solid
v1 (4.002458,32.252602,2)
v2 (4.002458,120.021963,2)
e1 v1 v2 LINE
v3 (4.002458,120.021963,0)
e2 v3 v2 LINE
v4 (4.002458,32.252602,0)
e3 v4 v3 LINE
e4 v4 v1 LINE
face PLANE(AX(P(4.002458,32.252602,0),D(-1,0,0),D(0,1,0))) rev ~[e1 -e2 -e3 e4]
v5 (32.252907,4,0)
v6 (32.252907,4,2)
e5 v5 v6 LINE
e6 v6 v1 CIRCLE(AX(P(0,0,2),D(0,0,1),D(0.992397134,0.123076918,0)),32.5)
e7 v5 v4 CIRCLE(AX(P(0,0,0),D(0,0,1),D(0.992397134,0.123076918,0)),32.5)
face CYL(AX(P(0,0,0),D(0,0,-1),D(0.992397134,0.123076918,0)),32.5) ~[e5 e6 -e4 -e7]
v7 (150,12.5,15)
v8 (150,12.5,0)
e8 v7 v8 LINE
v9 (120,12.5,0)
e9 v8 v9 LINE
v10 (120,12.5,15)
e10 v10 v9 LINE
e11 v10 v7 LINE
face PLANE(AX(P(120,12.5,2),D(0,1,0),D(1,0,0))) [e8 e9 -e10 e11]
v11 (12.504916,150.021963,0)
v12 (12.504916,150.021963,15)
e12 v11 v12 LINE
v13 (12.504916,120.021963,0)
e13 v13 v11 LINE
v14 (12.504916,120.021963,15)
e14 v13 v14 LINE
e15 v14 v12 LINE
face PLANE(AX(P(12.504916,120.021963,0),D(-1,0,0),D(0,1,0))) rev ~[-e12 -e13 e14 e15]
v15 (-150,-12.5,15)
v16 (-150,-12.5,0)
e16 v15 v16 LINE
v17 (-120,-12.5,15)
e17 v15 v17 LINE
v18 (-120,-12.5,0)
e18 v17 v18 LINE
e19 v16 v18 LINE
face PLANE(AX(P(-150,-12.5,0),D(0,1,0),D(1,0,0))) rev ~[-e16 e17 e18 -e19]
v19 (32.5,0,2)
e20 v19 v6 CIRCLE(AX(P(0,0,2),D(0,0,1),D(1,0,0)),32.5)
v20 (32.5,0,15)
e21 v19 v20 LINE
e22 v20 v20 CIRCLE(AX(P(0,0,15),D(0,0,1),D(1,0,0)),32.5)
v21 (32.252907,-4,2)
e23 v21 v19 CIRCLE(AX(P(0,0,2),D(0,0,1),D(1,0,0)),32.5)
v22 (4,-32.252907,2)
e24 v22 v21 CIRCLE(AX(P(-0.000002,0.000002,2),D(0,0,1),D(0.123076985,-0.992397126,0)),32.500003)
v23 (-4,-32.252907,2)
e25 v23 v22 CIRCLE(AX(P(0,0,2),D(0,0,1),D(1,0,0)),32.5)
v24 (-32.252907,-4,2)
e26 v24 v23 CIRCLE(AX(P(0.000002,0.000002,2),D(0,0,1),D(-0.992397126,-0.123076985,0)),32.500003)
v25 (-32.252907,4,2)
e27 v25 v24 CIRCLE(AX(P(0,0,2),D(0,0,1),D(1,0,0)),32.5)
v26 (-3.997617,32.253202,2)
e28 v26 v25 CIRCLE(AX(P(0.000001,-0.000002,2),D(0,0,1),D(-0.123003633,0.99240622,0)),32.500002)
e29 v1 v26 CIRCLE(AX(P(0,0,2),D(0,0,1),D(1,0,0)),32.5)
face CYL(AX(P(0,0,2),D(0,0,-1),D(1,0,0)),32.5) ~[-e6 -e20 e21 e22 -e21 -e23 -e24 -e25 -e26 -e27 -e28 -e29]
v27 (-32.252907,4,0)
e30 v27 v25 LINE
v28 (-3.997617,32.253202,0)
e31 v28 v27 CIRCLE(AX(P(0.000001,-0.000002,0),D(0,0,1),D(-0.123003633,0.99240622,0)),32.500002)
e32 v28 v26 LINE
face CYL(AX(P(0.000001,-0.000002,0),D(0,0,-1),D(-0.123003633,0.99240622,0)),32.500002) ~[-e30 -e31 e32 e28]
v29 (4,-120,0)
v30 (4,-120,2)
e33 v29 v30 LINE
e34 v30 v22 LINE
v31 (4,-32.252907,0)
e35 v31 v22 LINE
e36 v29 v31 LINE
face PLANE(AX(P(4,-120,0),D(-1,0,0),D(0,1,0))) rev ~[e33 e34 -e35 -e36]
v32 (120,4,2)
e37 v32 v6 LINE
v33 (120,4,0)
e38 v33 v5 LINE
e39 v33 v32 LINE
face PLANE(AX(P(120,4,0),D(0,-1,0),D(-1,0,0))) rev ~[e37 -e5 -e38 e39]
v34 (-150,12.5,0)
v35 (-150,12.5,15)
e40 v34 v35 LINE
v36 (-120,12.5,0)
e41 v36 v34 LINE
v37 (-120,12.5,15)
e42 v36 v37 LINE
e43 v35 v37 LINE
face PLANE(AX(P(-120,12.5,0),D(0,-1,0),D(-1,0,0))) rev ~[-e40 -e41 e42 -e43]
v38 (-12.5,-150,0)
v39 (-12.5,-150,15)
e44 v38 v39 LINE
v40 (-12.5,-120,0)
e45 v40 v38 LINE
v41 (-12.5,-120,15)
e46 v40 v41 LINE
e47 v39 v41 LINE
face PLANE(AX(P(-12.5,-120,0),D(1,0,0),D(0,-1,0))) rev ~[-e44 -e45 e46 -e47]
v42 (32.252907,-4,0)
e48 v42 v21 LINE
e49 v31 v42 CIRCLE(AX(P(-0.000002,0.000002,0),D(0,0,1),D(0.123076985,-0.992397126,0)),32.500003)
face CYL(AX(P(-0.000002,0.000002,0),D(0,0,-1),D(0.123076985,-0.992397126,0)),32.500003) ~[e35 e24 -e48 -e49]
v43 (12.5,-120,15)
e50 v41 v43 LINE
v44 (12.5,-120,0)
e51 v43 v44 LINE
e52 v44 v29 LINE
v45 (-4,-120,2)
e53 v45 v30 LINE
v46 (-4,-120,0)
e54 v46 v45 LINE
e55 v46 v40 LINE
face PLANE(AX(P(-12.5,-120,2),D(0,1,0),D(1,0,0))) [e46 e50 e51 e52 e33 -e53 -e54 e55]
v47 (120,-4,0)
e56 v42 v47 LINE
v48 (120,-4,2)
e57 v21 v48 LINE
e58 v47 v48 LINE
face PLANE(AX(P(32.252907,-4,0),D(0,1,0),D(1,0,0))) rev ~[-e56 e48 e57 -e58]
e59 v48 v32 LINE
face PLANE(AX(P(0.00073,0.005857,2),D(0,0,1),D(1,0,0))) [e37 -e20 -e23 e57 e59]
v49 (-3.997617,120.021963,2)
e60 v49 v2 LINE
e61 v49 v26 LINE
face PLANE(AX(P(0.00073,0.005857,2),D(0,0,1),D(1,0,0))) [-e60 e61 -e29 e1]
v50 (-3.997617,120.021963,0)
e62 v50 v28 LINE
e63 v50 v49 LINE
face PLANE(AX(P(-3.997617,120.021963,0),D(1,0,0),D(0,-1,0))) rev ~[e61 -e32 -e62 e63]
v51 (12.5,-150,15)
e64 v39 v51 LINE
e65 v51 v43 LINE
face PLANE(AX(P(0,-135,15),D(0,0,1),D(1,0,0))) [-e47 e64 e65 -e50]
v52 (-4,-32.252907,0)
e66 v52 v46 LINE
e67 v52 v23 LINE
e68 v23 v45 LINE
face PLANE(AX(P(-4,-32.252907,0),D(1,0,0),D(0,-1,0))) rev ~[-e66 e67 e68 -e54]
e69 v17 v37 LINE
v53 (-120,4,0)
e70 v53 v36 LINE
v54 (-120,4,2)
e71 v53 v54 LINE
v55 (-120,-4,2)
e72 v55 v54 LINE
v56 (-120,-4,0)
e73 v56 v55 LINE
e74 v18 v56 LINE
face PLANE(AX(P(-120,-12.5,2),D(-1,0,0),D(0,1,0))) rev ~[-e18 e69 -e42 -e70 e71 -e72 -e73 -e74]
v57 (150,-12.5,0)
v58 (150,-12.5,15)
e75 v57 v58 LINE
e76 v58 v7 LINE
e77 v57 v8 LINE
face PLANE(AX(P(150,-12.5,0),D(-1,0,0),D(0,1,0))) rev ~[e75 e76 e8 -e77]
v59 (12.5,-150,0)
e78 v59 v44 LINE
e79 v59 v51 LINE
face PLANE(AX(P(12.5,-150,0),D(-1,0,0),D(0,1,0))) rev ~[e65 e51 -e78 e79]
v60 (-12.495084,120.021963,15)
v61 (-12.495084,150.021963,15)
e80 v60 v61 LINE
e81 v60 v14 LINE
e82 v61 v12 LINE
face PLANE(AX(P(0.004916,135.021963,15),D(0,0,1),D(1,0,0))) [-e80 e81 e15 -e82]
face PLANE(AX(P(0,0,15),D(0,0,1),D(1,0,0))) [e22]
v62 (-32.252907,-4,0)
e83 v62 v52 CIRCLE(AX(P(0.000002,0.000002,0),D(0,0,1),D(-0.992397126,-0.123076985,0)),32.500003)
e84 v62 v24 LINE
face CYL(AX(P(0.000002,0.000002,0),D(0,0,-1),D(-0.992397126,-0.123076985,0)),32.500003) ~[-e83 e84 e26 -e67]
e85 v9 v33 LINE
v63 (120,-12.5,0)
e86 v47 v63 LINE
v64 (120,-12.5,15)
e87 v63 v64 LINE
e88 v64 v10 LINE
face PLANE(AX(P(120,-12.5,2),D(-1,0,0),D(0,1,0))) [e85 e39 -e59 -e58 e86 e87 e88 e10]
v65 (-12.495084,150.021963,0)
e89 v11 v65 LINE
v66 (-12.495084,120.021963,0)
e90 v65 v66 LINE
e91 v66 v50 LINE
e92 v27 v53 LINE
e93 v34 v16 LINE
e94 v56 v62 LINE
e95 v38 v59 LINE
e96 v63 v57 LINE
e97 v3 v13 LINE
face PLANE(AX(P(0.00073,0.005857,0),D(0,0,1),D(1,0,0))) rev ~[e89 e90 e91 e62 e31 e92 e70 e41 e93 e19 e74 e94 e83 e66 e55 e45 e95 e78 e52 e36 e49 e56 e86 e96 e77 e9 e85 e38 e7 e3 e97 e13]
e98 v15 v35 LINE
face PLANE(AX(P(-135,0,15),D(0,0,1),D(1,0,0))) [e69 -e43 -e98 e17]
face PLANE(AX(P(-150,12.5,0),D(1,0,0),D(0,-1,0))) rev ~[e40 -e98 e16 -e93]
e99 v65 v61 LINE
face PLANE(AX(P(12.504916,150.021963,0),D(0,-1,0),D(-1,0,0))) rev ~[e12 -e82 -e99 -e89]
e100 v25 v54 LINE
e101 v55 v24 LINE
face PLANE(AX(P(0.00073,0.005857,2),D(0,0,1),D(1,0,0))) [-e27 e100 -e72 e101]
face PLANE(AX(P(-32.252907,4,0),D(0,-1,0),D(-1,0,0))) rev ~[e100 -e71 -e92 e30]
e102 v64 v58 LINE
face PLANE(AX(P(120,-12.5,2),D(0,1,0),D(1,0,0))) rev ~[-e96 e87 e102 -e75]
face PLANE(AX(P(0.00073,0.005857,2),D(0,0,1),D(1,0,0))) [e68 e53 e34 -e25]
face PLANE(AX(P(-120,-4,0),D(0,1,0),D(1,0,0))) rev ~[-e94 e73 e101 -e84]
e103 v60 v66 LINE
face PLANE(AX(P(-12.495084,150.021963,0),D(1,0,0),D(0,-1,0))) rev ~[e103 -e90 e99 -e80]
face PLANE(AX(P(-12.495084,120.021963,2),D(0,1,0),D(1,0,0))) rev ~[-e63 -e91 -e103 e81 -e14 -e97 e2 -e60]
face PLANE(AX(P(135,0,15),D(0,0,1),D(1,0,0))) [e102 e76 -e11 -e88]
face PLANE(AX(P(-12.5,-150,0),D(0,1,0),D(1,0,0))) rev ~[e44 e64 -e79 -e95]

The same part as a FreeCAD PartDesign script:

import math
import FreeCAD as App
import Part
import Sketcher

V = App.Vector
Q = App.Units.Quantity


def add_polygon(sketch, points):
    """Adds a closed chain of lines whose ends are joined by coincident constraints."""
    first, n = sketch.GeometryCount, len(points)
    for a, b in zip(points, points[1:] + points[:1]):
        sketch.addGeometry(Part.LineSegment(App.Vector(*a, 0), App.Vector(*b, 0)), False)
    for i in range(n):
        sketch.addConstraint(Sketcher.Constraint("Coincident", first + i, 2, first + (i + 1) % n, 1))

doc = App.newDocument("Part")
params = doc.addObject("Spreadsheet::Sheet", "Params")
for row, (alias, value) in enumerate([
    ("sketch1_radius", "32.5 mm"),
    ("sketch1_width", "30 mm"),
    ("sketch1_width2", "25 mm"),
    ("sketch1_width3", "8.5 mm"),
    ("pad1_length", "2 mm"),
    ("sketch2_diameter", "65 mm"),
    ("sketch2_width", "30 mm"),
    ("sketch2_width2", "25 mm"),
    ("pad2_length", "13 mm"),
], start=1):
    params.set(f"A{row}", alias)
    params.set(f"B{row}", "=" + value)
    params.setAlias(f"B{row}", alias)

body = doc.addObject("PartDesign::Body", "Body")

# Sketch on XY plane
sketch1 = body.newObject("Sketcher::SketchObject", "Sketch")
sketch1.AttachmentSupport = (doc.getObject("XY_Plane"), [""])
sketch1.MapMode = "FlatFace"
sketch1.addGeometry(Part.LineSegment(V(-150, -12, 0), V(-120, -12, 0)), False)
sketch1.addGeometry(Part.LineSegment(V(-120, -12, 0), V(-120, -4, 0)), False)
sketch1.addGeometry(Part.LineSegment(V(-120, -4, 0), V(-32, -4, 0)), False)
sketch1.addGeometry(Part.ArcOfCircle(Part.Circle(V(0, 0, 0), V(0, 0, 1), 33), math.radians(-173), math.radians(-97)), False)
sketch1.addGeometry(Part.LineSegment(V(-4, -32, 0), V(-4, -120, 0)), False)
sketch1.addGeometry(Part.LineSegment(V(-4, -120, 0), V(-12, -120, 0)), False)
sketch1.addGeometry(Part.LineSegment(V(-12, -120, 0), V(-12, -150, 0)), False)
sketch1.addGeometry(Part.LineSegment(V(-12, -150, 0), V(12, -150, 0)), False)
sketch1.addGeometry(Part.LineSegment(V(12, -150, 0), V(12, -120, 0)), False)
sketch1.addGeometry(Part.LineSegment(V(12, -120, 0), V(4, -120, 0)), False)
sketch1.addGeometry(Part.LineSegment(V(4, -120, 0), V(4, -32, 0)), False)
sketch1.addGeometry(Part.ArcOfCircle(Part.Circle(V(0, 0, 0), V(0, 0, 1), 33), math.radians(-83), math.radians(-7)), False)
sketch1.addGeometry(Part.LineSegment(V(32, -4, 0), V(120, -4, 0)), False)
sketch1.addGeometry(Part.LineSegment(V(120, -4, 0), V(120, -12, 0)), False)
sketch1.addGeometry(Part.LineSegment(V(120, -12, 0), V(150, -12, 0)), False)
sketch1.addGeometry(Part.LineSegment(V(150, -12, 0), V(150, 12, 0)), False)
sketch1.addGeometry(Part.LineSegment(V(150, 12, 0), V(120, 12, 0)), False)
sketch1.addGeometry(Part.LineSegment(V(120, 12, 0), V(120, 4, 0)), False)
sketch1.addGeometry(Part.LineSegment(V(120, 4, 0), V(32, 4, 0)), False)
sketch1.addGeometry(Part.ArcOfCircle(Part.Circle(V(0, 0, 0), V(0, 0, 1), 32), math.radians(7), math.radians(83)), False)
sketch1.addGeometry(Part.LineSegment(V(4, 32, 0), V(4, 120, 0)), False)
sketch1.addGeometry(Part.LineSegment(V(4, 120, 0), V(13, 120, 0)), False)
sketch1.addGeometry(Part.LineSegment(V(13, 120, 0), V(13, 150, 0)), False)
sketch1.addGeometry(Part.LineSegment(V(13, 150, 0), V(-12, 150, 0)), False)
sketch1.addGeometry(Part.LineSegment(V(-12, 150, 0), V(-12, 120, 0)), False)
sketch1.addGeometry(Part.LineSegment(V(-12, 120, 0), V(-4, 120, 0)), False)
sketch1.addGeometry(Part.LineSegment(V(-4, 120, 0), V(-4, 32, 0)), False)
sketch1.addGeometry(Part.ArcOfCircle(Part.Circle(V(0, 0, 0), V(0, 0, 1), 33), math.radians(97), math.radians(173)), False)
sketch1.addGeometry(Part.LineSegment(V(-32, 4, 0), V(-120, 4, 0)), False)
sketch1.addGeometry(Part.LineSegment(V(-120, 4, 0), V(-120, 12, 0)), False)
sketch1.addGeometry(Part.LineSegment(V(-120, 12, 0), V(-150, 12, 0)), False)
sketch1.addGeometry(Part.LineSegment(V(-150, 12, 0), V(-150, -12, 0)), False)
sketch1.addConstraint(Sketcher.Constraint("Coincident", 0, 2, 1, 1))
sketch1.addConstraint(Sketcher.Constraint("Coincident", 1, 2, 2, 1))
sketch1.addConstraint(Sketcher.Constraint("Coincident", 2, 2, 3, 1))
sketch1.addConstraint(Sketcher.Constraint("Coincident", 3, 2, 4, 1))
sketch1.addConstraint(Sketcher.Constraint("Coincident", 4, 2, 5, 1))
sketch1.addConstraint(Sketcher.Constraint("Coincident", 5, 2, 6, 1))
sketch1.addConstraint(Sketcher.Constraint("Coincident", 6, 2, 7, 1))
sketch1.addConstraint(Sketcher.Constraint("Coincident", 7, 2, 8, 1))
sketch1.addConstraint(Sketcher.Constraint("Coincident", 8, 2, 9, 1))
sketch1.addConstraint(Sketcher.Constraint("Coincident", 9, 2, 10, 1))
sketch1.addConstraint(Sketcher.Constraint("Coincident", 10, 2, 11, 1))
sketch1.addConstraint(Sketcher.Constraint("Coincident", 11, 2, 12, 1))
sketch1.addConstraint(Sketcher.Constraint("Coincident", 12, 2, 13, 1))
sketch1.addConstraint(Sketcher.Constraint("Coincident", 13, 2, 14, 1))
sketch1.addConstraint(Sketcher.Constraint("Coincident", 14, 2, 15, 1))
sketch1.addConstraint(Sketcher.Constraint("Coincident", 15, 2, 16, 1))
sketch1.addConstraint(Sketcher.Constraint("Coincident", 16, 2, 17, 1))
sketch1.addConstraint(Sketcher.Constraint("Coincident", 17, 2, 18, 1))
sketch1.addConstraint(Sketcher.Constraint("Coincident", 18, 2, 19, 1))
sketch1.addConstraint(Sketcher.Constraint("Coincident", 19, 2, 20, 1))
sketch1.addConstraint(Sketcher.Constraint("Coincident", 20, 2, 21, 1))
sketch1.addConstraint(Sketcher.Constraint("Coincident", 21, 2, 22, 1))
sketch1.addConstraint(Sketcher.Constraint("Coincident", 22, 2, 23, 1))
sketch1.addConstraint(Sketcher.Constraint("Coincident", 23, 2, 24, 1))
sketch1.addConstraint(Sketcher.Constraint("Coincident", 24, 2, 25, 1))
sketch1.addConstraint(Sketcher.Constraint("Coincident", 25, 2, 26, 1))
sketch1.addConstraint(Sketcher.Constraint("Coincident", 26, 2, 27, 1))
sketch1.addConstraint(Sketcher.Constraint("Coincident", 27, 2, 28, 1))
sketch1.addConstraint(Sketcher.Constraint("Coincident", 28, 2, 29, 1))
sketch1.addConstraint(Sketcher.Constraint("Coincident", 29, 2, 30, 1))
sketch1.addConstraint(Sketcher.Constraint("Coincident", 30, 2, 31, 1))
sketch1.addConstraint(Sketcher.Constraint("Coincident", 31, 2, 0, 1))
sketch1.addConstraint(Sketcher.Constraint("Horizontal", 0))
sketch1.addConstraint(Sketcher.Constraint("Vertical", 1))
sketch1.addConstraint(Sketcher.Constraint("Horizontal", 2))
sketch1.addConstraint(Sketcher.Constraint("Vertical", 4))
sketch1.addConstraint(Sketcher.Constraint("Horizontal", 5))
sketch1.addConstraint(Sketcher.Constraint("Vertical", 6))
sketch1.addConstraint(Sketcher.Constraint("Horizontal", 7))
sketch1.addConstraint(Sketcher.Constraint("Vertical", 8))
sketch1.addConstraint(Sketcher.Constraint("Horizontal", 9))
sketch1.addConstraint(Sketcher.Constraint("Vertical", 10))
sketch1.addConstraint(Sketcher.Constraint("Horizontal", 12))
sketch1.addConstraint(Sketcher.Constraint("Vertical", 13))
sketch1.addConstraint(Sketcher.Constraint("Horizontal", 14))
sketch1.addConstraint(Sketcher.Constraint("Vertical", 15))
sketch1.addConstraint(Sketcher.Constraint("Horizontal", 16))
sketch1.addConstraint(Sketcher.Constraint("Vertical", 17))
sketch1.addConstraint(Sketcher.Constraint("Horizontal", 18))
sketch1.addConstraint(Sketcher.Constraint("Vertical", 20))
sketch1.addConstraint(Sketcher.Constraint("Horizontal", 21))
sketch1.addConstraint(Sketcher.Constraint("Vertical", 22))
sketch1.addConstraint(Sketcher.Constraint("Horizontal", 23))
sketch1.addConstraint(Sketcher.Constraint("Vertical", 24))
sketch1.addConstraint(Sketcher.Constraint("Horizontal", 25))
sketch1.addConstraint(Sketcher.Constraint("Vertical", 26))
sketch1.addConstraint(Sketcher.Constraint("Horizontal", 28))
sketch1.addConstraint(Sketcher.Constraint("Vertical", 29))
sketch1.addConstraint(Sketcher.Constraint("Horizontal", 30))
sketch1.addConstraint(Sketcher.Constraint("Vertical", 31))
sketch1.addConstraint(Sketcher.Constraint("Coincident", 3, 3, -1, 1))
sketch1.addConstraint(Sketcher.Constraint("Coincident", 11, 3, -1, 1))
sketch1.addConstraint(Sketcher.Constraint("Coincident", 19, 3, -1, 1))
sketch1.addConstraint(Sketcher.Constraint("Coincident", 27, 3, -1, 1))
sketch1.addConstraint(Sketcher.Constraint("Equal", 3, 11))
sketch1.addConstraint(Sketcher.Constraint("Equal", 19, 27))
sketch1.addConstraint(Sketcher.Constraint("Symmetric", 0, 2, 16, 2, -1, 1))
sketch1.addConstraint(Sketcher.Constraint("Symmetric", 2, 2, 18, 2, -1, 1))
sketch1.addConstraint(Sketcher.Constraint("Symmetric", 12, 2, 28, 2, -1, 1))
sketch1.addConstraint(Sketcher.Constraint("Symmetric", 14, 2, 30, 2, -1, 1))
sketch1.addConstraint(Sketcher.Constraint("Symmetric", 5, 2, 8, 2, -2))
sketch1.addConstraint(Sketcher.Constraint("Symmetric", 1, 2, 12, 2, -2))
sketch1.addConstraint(Sketcher.Constraint("Horizontal", 3, 2, 10, 2))
sketch1.addConstraint(Sketcher.Constraint("Horizontal", 0, 2, 13, 2))
sketch1.addConstraint(Sketcher.Constraint("Horizontal", 21, 2, 24, 2))
sketch1.addConstraint(Sketcher.Constraint("Equal", 7, 23))
sketch1.addConstraint(Sketcher.Constraint("Equal", 9, 1))
sketch1.addConstraint(Sketcher.Constraint("Equal", 28, 4))
sketch1.addConstraint(Sketcher.Constraint("Equal", 30, 6))
sketch1.addConstraint(Sketcher.Constraint("Equal", 23, 15))
sketch1.addConstraint(Sketcher.Constraint("Equal", 8, 22))
sketch1.addConstraint(Sketcher.Constraint("Radius", 19, Q("32.5 mm")))
sketch1.addConstraint(Sketcher.Constraint("DistanceX", 0, 1, 0, 2, Q("30 mm")))
sketch1.addConstraint(Sketcher.Constraint("DistanceX", 7, 1, 7, 2, Q("25 mm")))
sketch1.addConstraint(Sketcher.Constraint("DistanceX", 5, 2, 5, 1, Q("8.5 mm")))
sketch1.addConstraint(Sketcher.Constraint("DistanceX", 0, 2, -1, 1, Q("120 mm")))
sketch1.addConstraint(Sketcher.Constraint("DistanceX", 21, 1, 21, 2, Q("8.502458 mm")))
sketch1.addConstraint(Sketcher.Constraint("DistanceY", 20, 1, 20, 2, Q("87.769361 mm")))
sketch1.addConstraint(Sketcher.Constraint("DistanceY", 26, 2, 26, 1, Q("87.768761 mm")))
sketch1.addConstraint(Sketcher.Constraint("DistanceY", -1, 1, 19, 2, Q("32.252602 mm")))
sketch1.setExpression("Constraints[81]", "Params.sketch1_radius")
sketch1.setExpression("Constraints[82]", "Params.sketch1_width")
sketch1.setExpression("Constraints[83]", "Params.sketch1_width2")
sketch1.setExpression("Constraints[84]", "Params.sketch1_width3")
pad1 = body.newObject("PartDesign::Pad", "Pad")
pad1.Profile = sketch1
pad1.setExpression("Length", "Params.pad1_length")

# Sketch on XY plane
sketch2 = body.newObject("Sketcher::SketchObject", "Sketch001")
sketch2.AttachmentSupport = (doc.getObject("XY_Plane"), [""])
sketch2.MapMode = "FlatFace"
sketch2.AttachmentOffset = App.Placement(V(0, 0, 2), App.Rotation())
sketch2.addGeometry(Part.Circle(V(0, 0, 0), V(0, 0, 1), 32), False)  # 0
add_polygon(sketch2, [(-150, 12), (-150, -12), (-120, -12), (-120, 12)])  # lines 1-4
add_polygon(sketch2, [(-12, -120), (-12, -150), (12, -150), (12, -120)])  # lines 5-8
add_polygon(sketch2, [(120, 12), (120, -12), (150, -12), (150, 12)])  # lines 9-12
add_polygon(sketch2, [(-12, 150), (-12, 120), (13, 120), (13, 150)])  # lines 13-16
sketch2.addConstraint(Sketcher.Constraint("Vertical", 1))
sketch2.addConstraint(Sketcher.Constraint("Horizontal", 2))
sketch2.addConstraint(Sketcher.Constraint("Vertical", 3))
sketch2.addConstraint(Sketcher.Constraint("Horizontal", 4))
sketch2.addConstraint(Sketcher.Constraint("Vertical", 5))
sketch2.addConstraint(Sketcher.Constraint("Horizontal", 6))
sketch2.addConstraint(Sketcher.Constraint("Vertical", 7))
sketch2.addConstraint(Sketcher.Constraint("Horizontal", 8))
sketch2.addConstraint(Sketcher.Constraint("Vertical", 9))
sketch2.addConstraint(Sketcher.Constraint("Horizontal", 10))
sketch2.addConstraint(Sketcher.Constraint("Vertical", 11))
sketch2.addConstraint(Sketcher.Constraint("Horizontal", 12))
sketch2.addConstraint(Sketcher.Constraint("Vertical", 13))
sketch2.addConstraint(Sketcher.Constraint("Horizontal", 14))
sketch2.addConstraint(Sketcher.Constraint("Vertical", 15))
sketch2.addConstraint(Sketcher.Constraint("Horizontal", 16))
sketch2.addConstraint(Sketcher.Constraint("Coincident", 0, 3, -1, 1))
sketch2.addConstraint(Sketcher.Constraint("Symmetric", 3, 2, 9, 2, -1, 1))
sketch2.addConstraint(Sketcher.Constraint("Symmetric", 1, 2, 11, 2, -1, 1))
sketch2.addConstraint(Sketcher.Constraint("Horizontal", 2, 2, 9, 2))
sketch2.addConstraint(Sketcher.Constraint("Equal", 8, 14))
sketch2.addConstraint(Sketcher.Constraint("Equal", 16, 1))
sketch2.addConstraint(Sketcher.Constraint("Equal", 12, 5))
sketch2.addConstraint(Sketcher.Constraint("Equal", 7, 13))
sketch2.addConstraint(Sketcher.Constraint("Diameter", 0, Q("65 mm")))
sketch2.addConstraint(Sketcher.Constraint("DistanceX", 2, 1, 2, 2, Q("30 mm")))
sketch2.addConstraint(Sketcher.Constraint("DistanceX", 6, 1, 6, 2, Q("25 mm")))
sketch2.addConstraint(Sketcher.Constraint("DistanceX", 1, 2, -1, 1, Q("150 mm")))
sketch2.addConstraint(Sketcher.Constraint("DistanceY", 5, 2, -1, 1, Q("150 mm")))
sketch2.addConstraint(Sketcher.Constraint("DistanceX", 5, 2, -1, 1, Q("12.5 mm")))
sketch2.addConstraint(Sketcher.Constraint("DistanceX", 13, 2, -1, 1, Q("12.495084 mm")))
sketch2.addConstraint(Sketcher.Constraint("DistanceY", -1, 1, 13, 2, Q("120.021963 mm")))
sketch2.setExpression("Constraints[40]", "Params.sketch2_diameter")
sketch2.setExpression("Constraints[41]", "Params.sketch2_width")
sketch2.setExpression("Constraints[42]", "Params.sketch2_width2")
pad2 = body.newObject("PartDesign::Pad", "Pad001")
pad2.Profile = sketch2
pad2.setExpression("Length", "Params.pad2_length")

doc.recompute()
